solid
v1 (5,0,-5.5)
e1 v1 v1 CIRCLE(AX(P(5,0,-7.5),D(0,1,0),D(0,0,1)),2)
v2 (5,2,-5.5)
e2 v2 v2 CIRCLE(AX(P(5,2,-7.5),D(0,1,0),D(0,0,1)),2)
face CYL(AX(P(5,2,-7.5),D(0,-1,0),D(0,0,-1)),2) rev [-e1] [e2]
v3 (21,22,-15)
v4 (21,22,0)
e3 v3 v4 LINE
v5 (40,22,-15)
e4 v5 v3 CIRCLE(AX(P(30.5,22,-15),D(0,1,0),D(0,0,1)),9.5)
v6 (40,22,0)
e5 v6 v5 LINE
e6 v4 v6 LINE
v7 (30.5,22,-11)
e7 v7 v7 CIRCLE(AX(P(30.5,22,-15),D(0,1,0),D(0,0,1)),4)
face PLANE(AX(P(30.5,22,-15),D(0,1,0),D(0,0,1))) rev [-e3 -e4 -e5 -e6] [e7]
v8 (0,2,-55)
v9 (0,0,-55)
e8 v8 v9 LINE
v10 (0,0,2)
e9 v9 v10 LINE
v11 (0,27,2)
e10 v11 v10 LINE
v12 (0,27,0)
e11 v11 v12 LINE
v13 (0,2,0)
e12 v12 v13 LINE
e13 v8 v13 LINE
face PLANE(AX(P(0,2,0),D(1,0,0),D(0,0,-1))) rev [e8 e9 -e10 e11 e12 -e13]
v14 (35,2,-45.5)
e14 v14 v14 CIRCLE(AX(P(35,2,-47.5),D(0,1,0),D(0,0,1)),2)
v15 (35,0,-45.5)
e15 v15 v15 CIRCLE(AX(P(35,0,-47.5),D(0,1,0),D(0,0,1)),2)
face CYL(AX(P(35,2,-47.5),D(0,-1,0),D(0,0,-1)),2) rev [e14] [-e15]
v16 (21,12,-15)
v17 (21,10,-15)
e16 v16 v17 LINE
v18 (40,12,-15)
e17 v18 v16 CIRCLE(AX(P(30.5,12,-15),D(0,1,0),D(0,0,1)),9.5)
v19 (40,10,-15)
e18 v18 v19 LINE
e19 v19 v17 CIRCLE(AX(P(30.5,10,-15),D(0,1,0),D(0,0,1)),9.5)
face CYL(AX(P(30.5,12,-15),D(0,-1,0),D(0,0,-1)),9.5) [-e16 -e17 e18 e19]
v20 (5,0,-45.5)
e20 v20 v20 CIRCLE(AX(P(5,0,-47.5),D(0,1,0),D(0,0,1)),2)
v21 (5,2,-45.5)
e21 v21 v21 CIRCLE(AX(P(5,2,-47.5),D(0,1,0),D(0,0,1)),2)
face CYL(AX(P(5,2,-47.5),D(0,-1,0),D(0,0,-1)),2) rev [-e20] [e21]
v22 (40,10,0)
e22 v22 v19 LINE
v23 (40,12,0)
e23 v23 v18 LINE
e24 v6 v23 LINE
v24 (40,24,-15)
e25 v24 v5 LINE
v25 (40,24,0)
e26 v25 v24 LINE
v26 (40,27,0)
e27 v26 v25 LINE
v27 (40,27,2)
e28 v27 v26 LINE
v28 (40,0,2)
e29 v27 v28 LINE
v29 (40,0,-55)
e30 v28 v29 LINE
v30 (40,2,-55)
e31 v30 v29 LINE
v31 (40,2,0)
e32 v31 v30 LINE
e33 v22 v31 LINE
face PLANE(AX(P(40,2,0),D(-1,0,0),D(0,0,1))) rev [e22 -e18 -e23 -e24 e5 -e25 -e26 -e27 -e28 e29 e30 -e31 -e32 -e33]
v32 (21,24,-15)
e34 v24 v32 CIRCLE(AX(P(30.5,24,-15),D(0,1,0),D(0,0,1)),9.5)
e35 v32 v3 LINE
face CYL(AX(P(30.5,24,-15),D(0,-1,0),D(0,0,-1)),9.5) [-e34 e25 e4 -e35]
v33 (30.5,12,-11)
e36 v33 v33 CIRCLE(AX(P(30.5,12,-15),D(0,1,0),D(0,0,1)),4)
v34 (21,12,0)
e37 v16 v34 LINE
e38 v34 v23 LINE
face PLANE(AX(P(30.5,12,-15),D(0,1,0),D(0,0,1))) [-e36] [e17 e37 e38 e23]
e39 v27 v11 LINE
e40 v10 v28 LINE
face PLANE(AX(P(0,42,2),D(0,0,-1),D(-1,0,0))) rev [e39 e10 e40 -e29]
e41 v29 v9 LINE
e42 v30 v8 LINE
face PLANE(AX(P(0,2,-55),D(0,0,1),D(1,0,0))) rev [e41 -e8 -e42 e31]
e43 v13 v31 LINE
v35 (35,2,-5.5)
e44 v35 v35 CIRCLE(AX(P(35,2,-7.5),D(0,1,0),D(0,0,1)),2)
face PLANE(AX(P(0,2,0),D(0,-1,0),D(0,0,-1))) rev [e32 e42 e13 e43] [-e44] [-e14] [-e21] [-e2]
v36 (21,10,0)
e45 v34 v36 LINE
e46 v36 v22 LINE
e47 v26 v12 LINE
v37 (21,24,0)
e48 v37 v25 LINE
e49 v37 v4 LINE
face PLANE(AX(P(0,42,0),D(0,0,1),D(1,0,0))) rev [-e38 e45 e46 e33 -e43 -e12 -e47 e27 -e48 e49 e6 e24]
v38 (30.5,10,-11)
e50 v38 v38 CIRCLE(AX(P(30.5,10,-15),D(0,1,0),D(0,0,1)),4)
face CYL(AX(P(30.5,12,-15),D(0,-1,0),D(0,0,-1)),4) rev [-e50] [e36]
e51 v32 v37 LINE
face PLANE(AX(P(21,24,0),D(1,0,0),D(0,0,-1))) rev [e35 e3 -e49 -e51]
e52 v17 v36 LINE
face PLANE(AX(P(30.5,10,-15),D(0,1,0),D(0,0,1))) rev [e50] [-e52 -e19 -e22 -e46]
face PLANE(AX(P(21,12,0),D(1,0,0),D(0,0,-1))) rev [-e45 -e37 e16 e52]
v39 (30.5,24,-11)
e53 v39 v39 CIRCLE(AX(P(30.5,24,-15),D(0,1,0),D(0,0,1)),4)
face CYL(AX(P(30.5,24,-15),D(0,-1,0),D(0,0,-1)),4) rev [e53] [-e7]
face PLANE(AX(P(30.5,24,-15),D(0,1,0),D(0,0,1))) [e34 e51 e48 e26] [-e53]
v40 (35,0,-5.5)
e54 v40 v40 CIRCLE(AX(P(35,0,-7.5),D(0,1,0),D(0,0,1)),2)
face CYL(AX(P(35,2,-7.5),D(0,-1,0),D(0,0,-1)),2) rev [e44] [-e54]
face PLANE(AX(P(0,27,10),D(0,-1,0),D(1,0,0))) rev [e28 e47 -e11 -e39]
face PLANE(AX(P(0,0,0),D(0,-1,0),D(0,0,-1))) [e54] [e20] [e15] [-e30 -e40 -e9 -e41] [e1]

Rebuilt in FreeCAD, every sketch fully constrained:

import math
import FreeCAD as App
import Part
import Sketcher
Q = App.Units.Quantity

doc = App.newDocument("Part")
body = doc.addObject("PartDesign::Body", "Body")

sketch1 = body.newObject("Sketcher::SketchObject", "Sketch")
sketch1.AttachmentSupport = (doc.getObject("XZ_Plane"), [""])
sketch1.MapMode = "FlatFace"
sketch1.addGeometry(Part.LineSegment(App.Vector(0, -55, 0), App.Vector(0, 0, 0)), False)
sketch1.addGeometry(Part.LineSegment(App.Vector(0, 0, 0), App.Vector(40, 0, 0)), False)
sketch1.addGeometry(Part.LineSegment(App.Vector(40, 0, 0), App.Vector(40, -55, 0)), False)
sketch1.addGeometry(Part.LineSegment(App.Vector(40, -55, 0), App.Vector(0, -55, 0)), False)
sketch1.addGeometry(Part.Circle(App.Vector(5, -7.5, 0), App.Vector(0, 0, 1), 2), False)
sketch1.addGeometry(Part.Circle(App.Vector(35, -7.5, 0), App.Vector(0, 0, 1), 2), False)
sketch1.addGeometry(Part.Circle(App.Vector(5, -47.5, 0), App.Vector(0, 0, 1), 2), False)
sketch1.addGeometry(Part.Circle(App.Vector(35, -47.5, 0), App.Vector(0, 0, 1), 2), False)
sketch1.addConstraint(Sketcher.Constraint("Coincident", 0, 2, 1, 1))
sketch1.addConstraint(Sketcher.Constraint("Coincident", 1, 2, 2, 1))
sketch1.addConstraint(Sketcher.Constraint("Coincident", 2, 2, 3, 1))
sketch1.addConstraint(Sketcher.Constraint("Coincident", 3, 2, 0, 1))
sketch1.addConstraint(Sketcher.Constraint("Vertical", 0))
sketch1.addConstraint(Sketcher.Constraint("Horizontal", 1))
sketch1.addConstraint(Sketcher.Constraint("Vertical", 2))
sketch1.addConstraint(Sketcher.Constraint("Horizontal", 3))
sketch1.addConstraint(Sketcher.Constraint("Coincident", 0, 2, -1, 1))
sketch1.addConstraint(Sketcher.Constraint("Equal", 4, 5))
sketch1.addConstraint(Sketcher.Constraint("Equal", 5, 6))
sketch1.addConstraint(Sketcher.Constraint("Equal", 6, 7))
sketch1.addConstraint(Sketcher.Constraint("Horizontal", 4, 3, 5, 3))
sketch1.addConstraint(Sketcher.Constraint("Horizontal", 6, 3, 7, 3))
sketch1.addConstraint(Sketcher.Constraint("Vertical", 4, 3, 6, 3))
sketch1.addConstraint(Sketcher.Constraint("Vertical", 5, 3, 7, 3))
sketch1.addConstraint(Sketcher.Constraint("Diameter", 4, Q("4 mm")))
sketch1.addConstraint(Sketcher.Constraint("DistanceX", 1, 1, 1, 2, Q("40 mm")))
sketch1.addConstraint(Sketcher.Constraint("DistanceY", 0, 1, 0, 2, Q("55 mm")))
sketch1.addConstraint(Sketcher.Constraint("DistanceX", -1, 1, 4, 3, Q("5 mm")))
sketch1.addConstraint(Sketcher.Constraint("DistanceX", -1, 1, 5, 3, Q("35 mm")))
sketch1.addConstraint(Sketcher.Constraint("DistanceY", 6, 3, 4, 3, Q("40 mm")))
sketch1.addConstraint(Sketcher.Constraint("DistanceY", 4, 3, -1, 1, Q("7.5 mm")))
pad1 = body.newObject("PartDesign::Pad", "Pad")
pad1.Profile = sketch1
pad1.Length = 2
pad1.Reversed = True

sketch2 = body.newObject("Sketcher::SketchObject", "Sketch001")
sketch2.AttachmentSupport = (doc.getObject("XZ_Plane"), [""])
sketch2.MapMode = "FlatFace"
sketch2.addGeometry(Part.LineSegment(App.Vector(0, 0, 0), App.Vector(0, 2, 0)), False)
sketch2.addGeometry(Part.LineSegment(App.Vector(0, 2, 0), App.Vector(40, 2, 0)), False)
sketch2.addGeometry(Part.LineSegment(App.Vector(40, 2, 0), App.Vector(40, 0, 0)), False)
sketch2.addGeometry(Part.LineSegment(App.Vector(40, 0, 0), App.Vector(0, 0, 0)), False)
sketch2.addConstraint(Sketcher.Constraint("Coincident", 0, 2, 1, 1))
sketch2.addConstraint(Sketcher.Constraint("Coincident", 1, 2, 2, 1))
sketch2.addConstraint(Sketcher.Constraint("Coincident", 2, 2, 3, 1))
sketch2.addConstraint(Sketcher.Constraint("Coincident", 3, 2, 0, 1))
sketch2.addConstraint(Sketcher.Constraint("Vertical", 0))
sketch2.addConstraint(Sketcher.Constraint("Horizontal", 1))
sketch2.addConstraint(Sketcher.Constraint("Vertical", 2))
sketch2.addConstraint(Sketcher.Constraint("Horizontal", 3))
sketch2.addConstraint(Sketcher.Constraint("Coincident", 3, 2, -1, 1))
sketch2.addConstraint(Sketcher.Constraint("DistanceX", 1, 1, 1, 2, Q("40 mm")))
sketch2.addConstraint(Sketcher.Constraint("DistanceY", 0, 1, 0, 2, Q("2 mm")))
pad2 = body.newObject("PartDesign::Pad", "Pad001")
pad2.Profile = sketch2
pad2.Length = 42
pad2.Reversed = True

sketch3 = body.newObject("Sketcher::SketchObject", "Sketch002")
sketch3.AttachmentSupport = (doc.getObject("XZ_Plane"), [""])
sketch3.MapMode = "FlatFace"
sketch3.AttachmentOffset = App.Placement(App.Vector(0, 0, -22), App.Rotation())
sketch3.addGeometry(Part.LineSegment(App.Vector(40, 0, 0), App.Vector(40, -15, 0)), False)
sketch3.addGeometry(Part.ArcOfCircle(Part.Circle(App.Vector(30.5, -15, 0), App.Vector(0, 0, 1), 9.5), math.radians(180), math.radians(360)), False)
sketch3.addGeometry(Part.LineSegment(App.Vector(21, -15, 0), App.Vector(21, 0, 0)), False)
sketch3.addGeometry(Part.LineSegment(App.Vector(21, 0, 0), App.Vector(40, 0, 0)), False)
sketch3.addGeometry(Part.Circle(App.Vector(30.5, -15, 0), App.Vector(0, 0, 1), 4), False)
sketch3.addConstraint(Sketcher.Constraint("Tangent", 0, 2, 1, 2))
sketch3.addConstraint(Sketcher.Constraint("Tangent", 1, 1, 2, 1))
sketch3.addConstraint(Sketcher.Constraint("Coincident", 2, 2, 3, 1))
sketch3.addConstraint(Sketcher.Constraint("Coincident", 3, 2, 0, 1))
sketch3.addConstraint(Sketcher.Constraint("Vertical", 0))
sketch3.addConstraint(Sketcher.Constraint("Vertical", 2))
sketch3.addConstraint(Sketcher.Constraint("Horizontal", 3))
sketch3.addConstraint(Sketcher.Constraint("Coincident", 4, 3, 1, 3))
sketch3.addConstraint(Sketcher.Constraint("PointOnObject", 2, 2, -1))
sketch3.addConstraint(Sketcher.Constraint("Diameter", 4, Q("8 mm")))
sketch3.addConstraint(Sketcher.Constraint("Radius", 1, Q("9.5 mm")))
sketch3.addConstraint(Sketcher.Constraint("DistanceY", 0, 2, 0, 1, Q("15 mm")))
sketch3.addConstraint(Sketcher.Constraint("DistanceX", -1, 1, 0, 2, Q("40 mm")))
pad3 = body.newObject("PartDesign::Pad", "Pad002")
pad3.Profile = sketch3
pad3.Length = 2
pad3.Reversed = True
doc.recompute()

linearpattern = body.newObject("PartDesign::LinearPattern", "LinearPattern")
linearpattern.Originals = [pad3]
linearpattern.Direction = (doc.getObject("Y_Axis"), [""])
linearpattern.Mode = "offset"
linearpattern.Offset = 12
linearpattern.Occurrences = 2
linearpattern.Reversed = True
body.Tip = linearpattern

sketch4 = body.newObject("Sketcher::SketchObject", "Sketch003")
sketch4.AttachmentSupport = (doc.getObject("XY_Plane"), [""])
sketch4.MapMode = "FlatFace"
sketch4.addGeometry(Part.LineSegment(App.Vector(40, 42, 0), App.Vector(40, 27, 0)), False)
sketch4.addGeometry(Part.LineSegment(App.Vector(40, 27, 0), App.Vector(0, 27, 0)), False)
sketch4.addGeometry(Part.LineSegment(App.Vector(0, 27, 0), App.Vector(0, 42, 0)), False)
sketch4.addGeometry(Part.LineSegment(App.Vector(0, 42, 0), App.Vector(40, 42, 0)), False)
sketch4.addConstraint(Sketcher.Constraint("Coincident", 0, 2, 1, 1))
sketch4.addConstraint(Sketcher.Constraint("Coincident", 1, 2, 2, 1))
sketch4.addConstraint(Sketcher.Constraint("Coincident", 2, 2, 3, 1))
sketch4.addConstraint(Sketcher.Constraint("Coincident", 3, 2, 0, 1))
sketch4.addConstraint(Sketcher.Constraint("Vertical", 0))
sketch4.addConstraint(Sketcher.Constraint("Horizontal", 1))
sketch4.addConstraint(Sketcher.Constraint("Vertical", 2))
sketch4.addConstraint(Sketcher.Constraint("Horizontal", 3))
sketch4.addConstraint(Sketcher.Constraint("PointOnObject", 1, 2, -2))
sketch4.addConstraint(Sketcher.Constraint("DistanceX", 1, 2, 1, 1, Q("40 mm")))
sketch4.addConstraint(Sketcher.Constraint("DistanceY", 0, 2, 0, 1, Q("15 mm")))
sketch4.addConstraint(Sketcher.Constraint("DistanceY", -1, 1, 0, 2, Q("27 mm")))
pocket1 = body.newObject("PartDesign::Pocket", "Pocket")
pocket1.Profile = sketch4
pocket1.Length = 10
pocket1.Reversed = True

doc.recompute()
